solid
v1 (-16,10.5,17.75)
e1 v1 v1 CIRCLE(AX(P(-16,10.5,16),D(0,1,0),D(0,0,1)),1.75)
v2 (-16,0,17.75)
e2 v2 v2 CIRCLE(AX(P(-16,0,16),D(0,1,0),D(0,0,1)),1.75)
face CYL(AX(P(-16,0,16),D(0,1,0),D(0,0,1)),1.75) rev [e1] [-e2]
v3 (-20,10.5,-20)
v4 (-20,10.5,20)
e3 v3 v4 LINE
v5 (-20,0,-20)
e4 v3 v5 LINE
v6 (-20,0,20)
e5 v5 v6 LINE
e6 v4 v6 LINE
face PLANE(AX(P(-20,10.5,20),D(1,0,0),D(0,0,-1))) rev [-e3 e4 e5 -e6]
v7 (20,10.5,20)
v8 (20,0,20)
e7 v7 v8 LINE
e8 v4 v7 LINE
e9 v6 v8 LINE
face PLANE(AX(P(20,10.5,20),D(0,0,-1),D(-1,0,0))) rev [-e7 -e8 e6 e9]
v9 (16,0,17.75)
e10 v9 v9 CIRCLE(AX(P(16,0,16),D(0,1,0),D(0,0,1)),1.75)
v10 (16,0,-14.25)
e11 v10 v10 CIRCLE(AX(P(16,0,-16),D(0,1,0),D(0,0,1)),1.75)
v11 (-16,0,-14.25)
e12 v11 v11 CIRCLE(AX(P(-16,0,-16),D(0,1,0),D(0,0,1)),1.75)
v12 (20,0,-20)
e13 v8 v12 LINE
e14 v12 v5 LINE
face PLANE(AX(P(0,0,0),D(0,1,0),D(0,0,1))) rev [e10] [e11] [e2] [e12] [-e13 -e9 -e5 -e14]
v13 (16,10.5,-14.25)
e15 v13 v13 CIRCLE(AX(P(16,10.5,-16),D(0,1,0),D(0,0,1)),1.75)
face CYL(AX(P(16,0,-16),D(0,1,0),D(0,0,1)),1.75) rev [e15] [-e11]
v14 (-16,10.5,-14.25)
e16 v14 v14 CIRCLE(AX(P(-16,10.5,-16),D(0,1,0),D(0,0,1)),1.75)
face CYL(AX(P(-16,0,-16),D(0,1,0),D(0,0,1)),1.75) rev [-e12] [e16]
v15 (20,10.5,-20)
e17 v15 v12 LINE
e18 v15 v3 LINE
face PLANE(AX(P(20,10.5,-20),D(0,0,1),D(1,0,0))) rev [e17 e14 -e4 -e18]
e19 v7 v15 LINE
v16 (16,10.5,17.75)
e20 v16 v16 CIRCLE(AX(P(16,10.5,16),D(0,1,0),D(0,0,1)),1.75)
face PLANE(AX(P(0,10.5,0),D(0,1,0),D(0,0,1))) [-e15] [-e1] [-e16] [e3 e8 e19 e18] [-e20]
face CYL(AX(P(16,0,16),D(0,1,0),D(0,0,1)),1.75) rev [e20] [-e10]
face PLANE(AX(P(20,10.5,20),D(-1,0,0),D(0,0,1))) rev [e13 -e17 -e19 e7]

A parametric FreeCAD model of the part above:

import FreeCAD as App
import Part
import Sketcher


def add_polygon(sketch, points):
    """Adds a closed chain of lines whose ends are joined by coincident constraints."""
    first, n = sketch.GeometryCount, len(points)
    for a, b in zip(points, points[1:] + points[:1]):
        sketch.addGeometry(Part.LineSegment(App.Vector(*a, 0), App.Vector(*b, 0)), False)
    for i in range(n):
        sketch.addConstraint(Sketcher.Constraint("Coincident", first + i, 2, first + (i + 1) % n, 1))

doc = App.newDocument("Part")
body = doc.addObject("PartDesign::Body", "Body")

# Sketch on XZ plane
sketch1 = body.newObject("Sketcher::SketchObject", "Sketch")
sketch1.AttachmentSupport = (doc.getObject("XZ_Plane"), [""])
sketch1.MapMode = "FlatFace"
add_polygon(sketch1, [(-20, -20), (-20, 20), (20, 20), (20, -20)])  # lines 0-3
sketch1.addConstraint([
    Sketcher.Constraint("Vertical", 0),
    Sketcher.Constraint("Horizontal", 1),
    Sketcher.Constraint("Vertical", 2),
    Sketcher.Constraint("Horizontal", 3),
    Sketcher.Constraint("Symmetric", 0, 2, 2, 2, -1, 1),
    Sketcher.Constraint("Equal", 3, 0),
    Sketcher.Constraint("DistanceX", 1, 1, 1, 2, 40.0),
])
pad1 = body.newObject("PartDesign::Pad", "Pad")
pad1.Profile = sketch1
pad1.Length = 10.5
pad1.Reversed = True

# Sketch on XZ plane
sketch2 = body.newObject("Sketcher::SketchObject", "Sketch001")
sketch2.AttachmentSupport = (doc.getObject("XZ_Plane"), [""])
sketch2.MapMode = "FlatFace"
sketch2.AttachmentOffset = App.Placement(App.Vector(0, 0, -10.5), App.Rotation())
sketch2.addGeometry([
    Part.Circle(App.Vector(-16, -16, 0), App.Vector(0, 0, 1), 1.8),
    Part.Circle(App.Vector(16, -16, 0), App.Vector(0, 0, 1), 1.8),
    Part.Circle(App.Vector(16, 16, 0), App.Vector(0, 0, 1), 1.8),
    Part.Circle(App.Vector(-16, 16, 0), App.Vector(0, 0, 1), 1.8),
], False)
sketch2.addConstraint([
    Sketcher.Constraint("Equal", 0, 1),
    Sketcher.Constraint("Equal", 1, 2),
    Sketcher.Constraint("Equal", 2, 3),
    Sketcher.Constraint("Symmetric", 0, 3, 2, 3, -1, 1),
    Sketcher.Constraint("Symmetric", 1, 3, 3, 3, -1, 1),
    Sketcher.Constraint("Symmetric", 0, 3, 1, 3, -2),
    Sketcher.Constraint("Diameter", 0, 3.5),
    Sketcher.Constraint("DistanceX", 0, 3, -1, 1, 16.0),
    Sketcher.Constraint("DistanceY", 0, 3, -1, 1, 16.0),
])
pocket1 = body.newObject("PartDesign::Pocket", "Pocket")
pocket1.Profile = sketch2
pocket1.Length = 10.5
pocket1.Reversed = True

doc.recompute()
